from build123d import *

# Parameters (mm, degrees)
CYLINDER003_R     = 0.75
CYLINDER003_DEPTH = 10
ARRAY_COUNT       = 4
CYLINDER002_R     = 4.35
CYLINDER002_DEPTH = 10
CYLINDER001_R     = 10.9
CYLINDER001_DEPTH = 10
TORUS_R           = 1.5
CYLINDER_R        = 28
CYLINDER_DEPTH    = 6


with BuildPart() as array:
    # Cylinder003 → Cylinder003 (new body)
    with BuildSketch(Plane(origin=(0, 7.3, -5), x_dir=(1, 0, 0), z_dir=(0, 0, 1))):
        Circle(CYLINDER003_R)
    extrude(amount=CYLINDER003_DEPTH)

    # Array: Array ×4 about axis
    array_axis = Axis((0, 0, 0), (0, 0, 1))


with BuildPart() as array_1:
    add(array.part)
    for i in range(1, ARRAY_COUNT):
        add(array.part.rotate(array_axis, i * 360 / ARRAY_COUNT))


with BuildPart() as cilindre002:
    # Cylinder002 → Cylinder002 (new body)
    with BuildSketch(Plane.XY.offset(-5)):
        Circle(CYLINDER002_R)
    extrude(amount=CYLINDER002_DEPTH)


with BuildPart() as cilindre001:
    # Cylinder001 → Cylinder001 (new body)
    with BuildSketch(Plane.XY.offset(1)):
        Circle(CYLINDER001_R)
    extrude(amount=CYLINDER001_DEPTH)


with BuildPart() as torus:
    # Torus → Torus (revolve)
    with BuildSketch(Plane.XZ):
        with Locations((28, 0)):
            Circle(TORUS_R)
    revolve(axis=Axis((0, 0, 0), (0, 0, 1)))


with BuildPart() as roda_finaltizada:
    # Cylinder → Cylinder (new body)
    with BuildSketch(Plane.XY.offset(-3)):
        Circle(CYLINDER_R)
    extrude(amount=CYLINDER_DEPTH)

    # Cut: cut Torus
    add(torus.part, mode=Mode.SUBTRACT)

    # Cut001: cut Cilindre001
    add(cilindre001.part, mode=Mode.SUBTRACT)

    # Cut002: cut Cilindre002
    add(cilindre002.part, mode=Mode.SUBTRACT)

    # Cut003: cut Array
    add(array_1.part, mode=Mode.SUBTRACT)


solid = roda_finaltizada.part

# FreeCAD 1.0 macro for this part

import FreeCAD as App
import Part
import Sketcher
from FreeCAD import Vector
Q = App.Units.Quantity

doc = App.newDocument("Part")
body = doc.addObject("PartDesign::Body", "Body")

# Sketch on XY plane
sketch1 = body.newObject("Sketcher::SketchObject", "Sketch")
sketch1.AttachmentSupport = (doc.getObject("XY_Plane"), [""])
sketch1.MapMode = "FlatFace"
sketch1.AttachmentOffset = App.Placement(Vector(0, 0, -5), App.Rotation())
sketch1.addGeometry(Part.Circle(Vector(0, 7.3, 0), Vector(0, 0, 1), 0.8), False)
sketch1.addConstraint([
    Sketcher.Constraint("PointOnObject", 0, 3, -2),
    Sketcher.Constraint("Diameter", 0, Q("1.5 mm")),
    Sketcher.Constraint("DistanceY", -1, 1, 0, 3, Q("7.3 mm")),
])
pad1 = body.newObject("PartDesign::Pad", "Pad")
pad1.Profile = sketch1
pad1.Length = 10
body2 = doc.addObject("PartDesign::Body", "Body001")
body2.AllowCompound = True
doc.recompute()

body2.BaseFeature = body
doc.recompute()

body3 = doc.addObject("PartDesign::Body", "Body002")
body3.BaseFeature = body
body3.Placement = App.Placement(Vector(0, 0, 0), App.Rotation(Vector(0, 0, 1), 90))
boolean = body2.newObject("PartDesign::Boolean", "Boolean")
boolean.Type = "Fuse"
boolean.addObjects([body3])
doc.recompute()

body4 = doc.addObject("PartDesign::Body", "Body003")
body4.BaseFeature = body
body4.Placement = App.Placement(Vector(0, 0, 0), App.Rotation(Vector(0, 0, 1), 180))
boolean2 = body2.newObject("PartDesign::Boolean", "Boolean001")
boolean2.Type = "Fuse"
boolean2.addObjects([body4])
doc.recompute()

body.Placement = App.Placement(Vector(0, 0, 0), App.Rotation(Vector(0, 0, 1), 270))
boolean3 = body2.newObject("PartDesign::Boolean", "Boolean002")
boolean3.Type = "Fuse"
boolean3.addObjects([body])
body5 = doc.addObject("PartDesign::Body", "Body004")

# Sketch on XY plane
sketch2 = body5.newObject("Sketcher::SketchObject", "Sketch001")
sketch2.AttachmentSupport = (doc.getObject("XY_Plane004"), [""])
sketch2.MapMode = "FlatFace"
sketch2.AttachmentOffset = App.Placement(Vector(0, 0, -5), App.Rotation())
sketch2.addGeometry(Part.Circle(Vector(0, 0, 0), Vector(0, 0, 1), 4.3), False)
sketch2.addConstraint([
    Sketcher.Constraint("Coincident", 0, 3, -1, 1),
    Sketcher.Constraint("Diameter", 0, Q("8.7 mm")),
])
pad2 = body5.newObject("PartDesign::Pad", "Pad001")
pad2.Profile = sketch2
pad2.Length = 10
body6 = doc.addObject("PartDesign::Body", "Body005")

# Sketch on XY plane
sketch3 = body6.newObject("Sketcher::SketchObject", "Sketch002")
sketch3.AttachmentSupport = (doc.getObject("XY_Plane005"), [""])
sketch3.MapMode = "FlatFace"
sketch3.AttachmentOffset = App.Placement(Vector(0, 0, 1), App.Rotation())
sketch3.addGeometry(Part.Circle(Vector(0, 0, 0), Vector(0, 0, 1), 11), False)
sketch3.addConstraint([
    Sketcher.Constraint("Coincident", 0, 3, -1, 1),
    Sketcher.Constraint("Diameter", 0, Q("21.8 mm")),
])
pad3 = body6.newObject("PartDesign::Pad", "Pad002")
pad3.Profile = sketch3
pad3.Length = 10
body7 = doc.addObject("PartDesign::Body", "Body006")

# Sketch on XZ plane
sketch4 = body7.newObject("Sketcher::SketchObject", "Sketch003")
sketch4.AttachmentSupport = (doc.getObject("XZ_Plane006"), [""])
sketch4.MapMode = "FlatFace"
sketch4.addGeometry(Part.Circle(Vector(28, 0, 0), Vector(0, 0, 1), 1.5), False)
sketch4.addConstraint([
    Sketcher.Constraint("PointOnObject", 0, 3, -1),
    Sketcher.Constraint("Diameter", 0, Q("3 mm")),
    Sketcher.Constraint("DistanceX", -1, 1, 0, 3, Q("28 mm")),
])
revolution = body7.newObject("PartDesign::Revolution", "Revolution")
revolution.Profile = sketch4
revolution.ReferenceAxis = (sketch4, ["V_Axis"])
revolution.Angle = 360
body8 = doc.addObject("PartDesign::Body", "Body007")

# Sketch on XY plane
sketch5 = body8.newObject("Sketcher::SketchObject", "Sketch004")
sketch5.AttachmentSupport = (doc.getObject("XY_Plane007"), [""])
sketch5.MapMode = "FlatFace"
sketch5.AttachmentOffset = App.Placement(Vector(0, 0, -3), App.Rotation())
sketch5.addGeometry(Part.Circle(Vector(0, 0, 0), Vector(0, 0, 1), 28), False)
sketch5.addConstraint([
    Sketcher.Constraint("Coincident", 0, 3, -1, 1),
    Sketcher.Constraint("Diameter", 0, Q("56 mm")),
])
pad4 = body8.newObject("PartDesign::Pad", "Pad003")
pad4.Profile = sketch5
pad4.Length = 6
doc.recompute()

boolean4 = body8.newObject("PartDesign::Boolean", "Boolean003")
boolean4.Type = "Cut"
boolean4.addObjects([body7])
doc.recompute()

boolean5 = body8.newObject("PartDesign::Boolean", "Boolean004")
boolean5.Type = "Cut"
boolean5.addObjects([body6])
doc.recompute()

boolean6 = body8.newObject("PartDesign::Boolean", "Boolean005")
boolean6.Type = "Cut"
boolean6.addObjects([body5])
doc.recompute()

boolean7 = body8.newObject("PartDesign::Boolean", "Boolean006")
boolean7.Type = "Cut"
boolean7.addObjects([body2])

doc.recompute()
